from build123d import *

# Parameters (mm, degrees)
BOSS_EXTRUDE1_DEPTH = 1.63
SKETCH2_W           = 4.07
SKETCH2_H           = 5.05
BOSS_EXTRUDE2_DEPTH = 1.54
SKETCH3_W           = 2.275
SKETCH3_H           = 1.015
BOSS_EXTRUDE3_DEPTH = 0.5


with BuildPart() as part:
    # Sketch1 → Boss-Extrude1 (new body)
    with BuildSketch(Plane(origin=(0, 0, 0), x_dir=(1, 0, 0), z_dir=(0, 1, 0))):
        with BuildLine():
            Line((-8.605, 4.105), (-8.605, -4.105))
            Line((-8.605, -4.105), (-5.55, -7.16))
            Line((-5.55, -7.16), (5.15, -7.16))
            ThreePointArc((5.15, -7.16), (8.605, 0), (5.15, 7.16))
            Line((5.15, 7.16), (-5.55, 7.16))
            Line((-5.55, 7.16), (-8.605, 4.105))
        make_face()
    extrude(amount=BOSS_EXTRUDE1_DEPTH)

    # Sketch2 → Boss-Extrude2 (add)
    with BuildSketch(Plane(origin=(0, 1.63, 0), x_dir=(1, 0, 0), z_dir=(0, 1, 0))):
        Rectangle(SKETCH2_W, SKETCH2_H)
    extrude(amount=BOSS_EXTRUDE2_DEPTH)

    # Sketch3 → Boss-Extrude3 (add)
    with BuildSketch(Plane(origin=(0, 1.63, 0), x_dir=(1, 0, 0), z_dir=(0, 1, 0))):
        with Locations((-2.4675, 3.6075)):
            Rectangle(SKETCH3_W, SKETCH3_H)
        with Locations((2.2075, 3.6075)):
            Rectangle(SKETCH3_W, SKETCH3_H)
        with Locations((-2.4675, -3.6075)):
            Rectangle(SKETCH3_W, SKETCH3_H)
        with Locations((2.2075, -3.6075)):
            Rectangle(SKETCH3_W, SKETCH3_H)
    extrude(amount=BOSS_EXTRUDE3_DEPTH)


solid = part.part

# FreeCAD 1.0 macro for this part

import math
import FreeCAD as App
import Part
import Sketcher


def add_polygon(sketch, points):
    """Adds a closed chain of lines whose ends are joined by coincident constraints."""
    first, n = sketch.GeometryCount, len(points)
    for a, b in zip(points, points[1:] + points[:1]):
        sketch.addGeometry(Part.LineSegment(App.Vector(*a, 0), App.Vector(*b, 0)), False)
    for i in range(n):
        sketch.addConstraint(Sketcher.Constraint("Coincident", first + i, 2, first + (i + 1) % n, 1))

doc = App.newDocument("Part")
body = doc.addObject("PartDesign::Body", "Body")

# Sketch on XZ plane
sketch1 = body.newObject("Sketcher::SketchObject", "Sketch")
sketch1.AttachmentSupport = (doc.getObject("XZ_Plane"), [""])
sketch1.MapMode = "FlatFace"
sketch1.addGeometry(Part.LineSegment(App.Vector(-8.6, -4.1, 0), App.Vector(-8.6, 4.1, 0)), False)
sketch1.addGeometry(Part.LineSegment(App.Vector(-8.6, 4.1, 0), App.Vector(-5.5, 7.2, 0)), False)
sketch1.addGeometry(Part.LineSegment(App.Vector(-5.5, 7.2, 0), App.Vector(5.2, 7.2, 0)), False)
sketch1.addGeometry(Part.ArcOfCircle(Part.Circle(App.Vector(-0.5, 0, 0), App.Vector(0, 0, 1), 9.1), math.radians(-52), math.radians(52)), False)
sketch1.addGeometry(Part.LineSegment(App.Vector(5.2, -7.2, 0), App.Vector(-5.5, -7.2, 0)), False)
sketch1.addGeometry(Part.LineSegment(App.Vector(-5.5, -7.2, 0), App.Vector(-8.6, -4.1, 0)), False)
sketch1.addConstraint(Sketcher.Constraint("Coincident", 0, 2, 1, 1))
sketch1.addConstraint(Sketcher.Constraint("Coincident", 1, 2, 2, 1))
sketch1.addConstraint(Sketcher.Constraint("Coincident", 2, 2, 3, 2))
sketch1.addConstraint(Sketcher.Constraint("Coincident", 3, 1, 4, 1))
sketch1.addConstraint(Sketcher.Constraint("Coincident", 4, 2, 5, 1))
sketch1.addConstraint(Sketcher.Constraint("Coincident", 5, 2, 0, 1))
sketch1.addConstraint(Sketcher.Constraint("Vertical", 0))
sketch1.addConstraint(Sketcher.Constraint("Horizontal", 2))
sketch1.addConstraint(Sketcher.Constraint("Horizontal", 4))
sketch1.addConstraint(Sketcher.Constraint("Symmetric", 2, 2, 3, 1, -1))
sketch1.addConstraint(Sketcher.Constraint("Perpendicular", 1, 5))
sketch1.addConstraint(Sketcher.Constraint("Vertical", 1, 2, 4, 2))
sketch1.addConstraint(Sketcher.Constraint("Equal", 1, 5))
sketch1.addConstraint(Sketcher.Constraint("DistanceX", 2, 1, 2, 2, 10.7))
sketch1.addConstraint(Sketcher.Constraint("DistanceY", 0, 1, 0, 2, 8.21))
sketch1.addConstraint(Sketcher.Constraint("DistanceX", 1, 2, -1, 1, 5.55))
sketch1.addConstraint(Sketcher.Constraint("DistanceY", -1, 1, 1, 2, 7.16))
sketch1.addConstraint(Sketcher.Constraint("Radius", 3, 9.146545))
pad1 = body.newObject("PartDesign::Pad", "Pad")
pad1.Profile = sketch1
pad1.Length = 1.63
pad1.Reversed = True

# Sketch on XZ plane
sketch2 = body.newObject("Sketcher::SketchObject", "Sketch001")
sketch2.AttachmentSupport = (doc.getObject("XZ_Plane"), [""])
sketch2.MapMode = "FlatFace"
sketch2.AttachmentOffset = App.Placement(App.Vector(0, 0, -1.63), App.Rotation())
add_polygon(sketch2, [(-2, -2.5), (-2, 2.5), (2, 2.5), (2, -2.5)])  # lines 0-3
sketch2.addConstraint(Sketcher.Constraint("Vertical", 0))
sketch2.addConstraint(Sketcher.Constraint("Horizontal", 1))
sketch2.addConstraint(Sketcher.Constraint("Vertical", 2))
sketch2.addConstraint(Sketcher.Constraint("Horizontal", 3))
sketch2.addConstraint(Sketcher.Constraint("Symmetric", 0, 2, 2, 2, -1, 1))
sketch2.addConstraint(Sketcher.Constraint("DistanceX", 1, 1, 1, 2, 4.07))
sketch2.addConstraint(Sketcher.Constraint("DistanceY", 0, 1, 0, 2, 5.05))
pad2 = body.newObject("PartDesign::Pad", "Pad001")
pad2.Profile = sketch2
pad2.Length = 1.54
pad2.Reversed = True

# Sketch on XZ plane
sketch3 = body.newObject("Sketcher::SketchObject", "Sketch002")
sketch3.AttachmentSupport = (doc.getObject("XZ_Plane"), [""])
sketch3.MapMode = "FlatFace"
sketch3.AttachmentOffset = App.Placement(App.Vector(0, 0, -1.63), App.Rotation())
add_polygon(sketch3, [(-3.6, -4.1), (-3.6, -3.1), (-1.3, -3.1), (-1.3, -4.1)])  # lines 0-3
add_polygon(sketch3, [(1.1, -4.1), (1.1, -3.1), (3.3, -3.1), (3.3, -4.1)])  # lines 4-7
add_polygon(sketch3, [(-3.6, 3.1), (-3.6, 4.1), (-1.3, 4.1), (-1.3, 3.1)])  # lines 8-11
add_polygon(sketch3, [(1.1, 3.1), (1.1, 4.1), (3.3, 4.1), (3.3, 3.1)])  # lines 12-15
sketch3.addConstraint(Sketcher.Constraint("Vertical", 0))
sketch3.addConstraint(Sketcher.Constraint("Horizontal", 1))
sketch3.addConstraint(Sketcher.Constraint("Vertical", 2))
sketch3.addConstraint(Sketcher.Constraint("Horizontal", 3))
sketch3.addConstraint(Sketcher.Constraint("Vertical", 4))
sketch3.addConstraint(Sketcher.Constraint("Horizontal", 5))
sketch3.addConstraint(Sketcher.Constraint("Vertical", 6))
sketch3.addConstraint(Sketcher.Constraint("Horizontal", 7))
sketch3.addConstraint(Sketcher.Constraint("Vertical", 8))
sketch3.addConstraint(Sketcher.Constraint("Horizontal", 9))
sketch3.addConstraint(Sketcher.Constraint("Vertical", 10))
sketch3.addConstraint(Sketcher.Constraint("Horizontal", 11))
sketch3.addConstraint(Sketcher.Constraint("Vertical", 12))
sketch3.addConstraint(Sketcher.Constraint("Horizontal", 13))
sketch3.addConstraint(Sketcher.Constraint("Vertical", 14))
sketch3.addConstraint(Sketcher.Constraint("Horizontal", 15))
sketch3.addConstraint(Sketcher.Constraint("Symmetric", 3, 2, 8, 2, -1))
sketch3.addConstraint(Sketcher.Constraint("Symmetric", 1, 2, 10, 2, -1))
sketch3.addConstraint(Sketcher.Constraint("Symmetric", 7, 2, 12, 2, -1))
sketch3.addConstraint(Sketcher.Constraint("Symmetric", 5, 2, 14, 2, -1))
sketch3.addConstraint(Sketcher.Constraint("Horizontal", 1, 2, 4, 2))
sketch3.addConstraint(Sketcher.Constraint("Horizontal", 3, 2, 6, 2))
sketch3.addConstraint(Sketcher.Constraint("Equal", 3, 5))
sketch3.addConstraint(Sketcher.Constraint("DistanceY", 0, 2, -1, 1, 3.1))
sketch3.addConstraint(Sketcher.Constraint("DistanceX", 1, 2, 4, 2, 2.4))
sketch3.addConstraint(Sketcher.Constraint("DistanceX", 1, 1, 1, 2, 2.275))
sketch3.addConstraint(Sketcher.Constraint("DistanceY", 0, 1, 0, 2, 1.015))
sketch3.addConstraint(Sketcher.Constraint("DistanceX", 1, 2, -1, 1, 1.33))
pad3 = body.newObject("PartDesign::Pad", "Pad002")
pad3.Profile = sketch3
pad3.Length = 0.5
pad3.Reversed = True

doc.recompute()
